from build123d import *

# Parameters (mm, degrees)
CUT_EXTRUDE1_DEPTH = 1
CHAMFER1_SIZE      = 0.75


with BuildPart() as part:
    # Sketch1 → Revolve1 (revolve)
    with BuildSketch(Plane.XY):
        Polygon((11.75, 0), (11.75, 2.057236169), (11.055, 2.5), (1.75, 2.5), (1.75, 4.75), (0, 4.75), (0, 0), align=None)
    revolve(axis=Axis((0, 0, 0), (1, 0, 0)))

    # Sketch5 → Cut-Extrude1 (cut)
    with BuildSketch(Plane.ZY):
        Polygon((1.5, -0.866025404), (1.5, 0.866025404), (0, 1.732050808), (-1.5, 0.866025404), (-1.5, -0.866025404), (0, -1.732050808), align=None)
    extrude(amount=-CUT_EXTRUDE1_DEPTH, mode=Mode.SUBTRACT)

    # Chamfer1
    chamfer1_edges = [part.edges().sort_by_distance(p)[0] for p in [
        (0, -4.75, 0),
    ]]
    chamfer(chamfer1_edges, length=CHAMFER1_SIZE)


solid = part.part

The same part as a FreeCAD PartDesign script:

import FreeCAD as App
import Part
import Sketcher
Q = App.Units.Quantity


def edges_at(feature, points):
    """Names of the edges that pass closest to the given points."""
    edges = feature.Shape.Edges
    near = lambda p: min(range(len(edges)), key=lambda i: edges[i].distToShape(Part.Vertex(*p))[0])
    return sorted({f"Edge{near(p) + 1}" for p in points})


def add_polygon(sketch, points):
    """Adds a closed chain of lines whose ends are joined by coincident constraints."""
    first, n = sketch.GeometryCount, len(points)
    for a, b in zip(points, points[1:] + points[:1]):
        sketch.addGeometry(Part.LineSegment(App.Vector(*a, 0), App.Vector(*b, 0)), False)
    for i in range(n):
        sketch.addConstraint(Sketcher.Constraint("Coincident", first + i, 2, first + (i + 1) % n, 1))

doc = App.newDocument("Part")
params = doc.addObject("Spreadsheet::Sheet", "Params")
for row, (alias, value) in enumerate([
    ("sketch1_width", "1.75 mm"),
    ("sketch1_height", "2.25 mm"),
    ("sketch1_height2", "4.75 mm"),
    ("revolution_angle", "360 deg"),
    ("pocket1_length", "1 mm"),
    ("chamfer_size", "0.75 mm"),
], start=1):
    params.set(f"A{row}", alias)
    params.set(f"B{row}", "=" + value)
    params.setAlias(f"B{row}", alias)

body = doc.addObject("PartDesign::Body", "Body")

sketch1 = body.newObject("Sketcher::SketchObject", "Sketch")
sketch1.AttachmentSupport = (doc.getObject("XY_Plane"), [""])
sketch1.MapMode = "FlatFace"
add_polygon(sketch1, [(11.75, 0), (11.75, 2.057236), (11.055, 2.5), (1.75, 2.5), (1.75, 4.75), (0, 4.75), (0, 0)])
sketch1.addConstraint([
    Sketcher.Constraint("Vertical", 0),
    Sketcher.Constraint("Horizontal", 2),
    Sketcher.Constraint("Vertical", 3),
    Sketcher.Constraint("Horizontal", 4),
    Sketcher.Constraint("Vertical", 5),
    Sketcher.Constraint("Horizontal", 6),
    Sketcher.Constraint("Coincident", 5, 2, -1, 1),
    Sketcher.Constraint("Angle", 1, Q("147.5 deg")),
    Sketcher.Constraint("DistanceX", 2, 2, 0, 2, 10.0),
    Sketcher.Constraint("DistanceX", 4, 2, 4, 1, 1.75),
    Sketcher.Constraint("DistanceY", 3, 1, 3, 2, 2.25),
    Sketcher.Constraint("DistanceY", 5, 2, 5, 1, 4.75),
    Sketcher.Constraint("DistanceX", 2, 2, 2, 1, 9.305),
])
sketch1.setExpression("Constraints[16]", "Params.sketch1_width")
sketch1.setExpression("Constraints[17]", "Params.sketch1_height")
sketch1.setExpression("Constraints[18]", "Params.sketch1_height2")
revolution = body.newObject("PartDesign::Revolution", "Revolution")
revolution.Profile = sketch1
revolution.ReferenceAxis = (sketch1, ["H_Axis"])
revolution.setExpression("Angle", "Params.revolution_angle")

sketch2 = body.newObject("Sketcher::SketchObject", "Sketch001")
sketch2.AttachmentSupport = (doc.getObject("YZ_Plane"), [""])
sketch2.MapMode = "FlatFace"
add_polygon(sketch2, [(-0.866025, 1.5), (0.866025, 1.5), (1.732051, 0), (0.866025, -1.5), (-0.866025, -1.5), (-1.732051, 0)])
sketch2.addConstraint([
    Sketcher.Constraint("Horizontal", 0),
    Sketcher.Constraint("Horizontal", 3),
    Sketcher.Constraint("Symmetric", 0, 2, 3, 2, -1, 1),
    Sketcher.Constraint("Symmetric", 1, 2, 4, 2, -1, 1),
    Sketcher.Constraint("PointOnObject", 1, 2, -1),
    Sketcher.Constraint("Parallel", 2, 5),
    Sketcher.Constraint("Vertical", 0, 2, 2, 2),
    Sketcher.Constraint("Angle", 1, Q("-60 deg")),
    Sketcher.Constraint("DistanceY", 2, 2, 0, 2, 3.0),
    Sketcher.Constraint("DistanceX", 0, 1, 0, 2, 1.732051),
])
pocket1 = body.newObject("PartDesign::Pocket", "Pocket")
pocket1.Profile = sketch2
pocket1.setExpression("Length", "Params.pocket1_length")
pocket1.Reversed = True
doc.recompute()

chamfer = body.newObject("PartDesign::Chamfer", "Chamfer")
chamfer.Base = (pocket1, edges_at(pocket1, [(0, -4.75, 0)]))
chamfer.setExpression("Size", "Params.chamfer_size")

doc.recompute()
